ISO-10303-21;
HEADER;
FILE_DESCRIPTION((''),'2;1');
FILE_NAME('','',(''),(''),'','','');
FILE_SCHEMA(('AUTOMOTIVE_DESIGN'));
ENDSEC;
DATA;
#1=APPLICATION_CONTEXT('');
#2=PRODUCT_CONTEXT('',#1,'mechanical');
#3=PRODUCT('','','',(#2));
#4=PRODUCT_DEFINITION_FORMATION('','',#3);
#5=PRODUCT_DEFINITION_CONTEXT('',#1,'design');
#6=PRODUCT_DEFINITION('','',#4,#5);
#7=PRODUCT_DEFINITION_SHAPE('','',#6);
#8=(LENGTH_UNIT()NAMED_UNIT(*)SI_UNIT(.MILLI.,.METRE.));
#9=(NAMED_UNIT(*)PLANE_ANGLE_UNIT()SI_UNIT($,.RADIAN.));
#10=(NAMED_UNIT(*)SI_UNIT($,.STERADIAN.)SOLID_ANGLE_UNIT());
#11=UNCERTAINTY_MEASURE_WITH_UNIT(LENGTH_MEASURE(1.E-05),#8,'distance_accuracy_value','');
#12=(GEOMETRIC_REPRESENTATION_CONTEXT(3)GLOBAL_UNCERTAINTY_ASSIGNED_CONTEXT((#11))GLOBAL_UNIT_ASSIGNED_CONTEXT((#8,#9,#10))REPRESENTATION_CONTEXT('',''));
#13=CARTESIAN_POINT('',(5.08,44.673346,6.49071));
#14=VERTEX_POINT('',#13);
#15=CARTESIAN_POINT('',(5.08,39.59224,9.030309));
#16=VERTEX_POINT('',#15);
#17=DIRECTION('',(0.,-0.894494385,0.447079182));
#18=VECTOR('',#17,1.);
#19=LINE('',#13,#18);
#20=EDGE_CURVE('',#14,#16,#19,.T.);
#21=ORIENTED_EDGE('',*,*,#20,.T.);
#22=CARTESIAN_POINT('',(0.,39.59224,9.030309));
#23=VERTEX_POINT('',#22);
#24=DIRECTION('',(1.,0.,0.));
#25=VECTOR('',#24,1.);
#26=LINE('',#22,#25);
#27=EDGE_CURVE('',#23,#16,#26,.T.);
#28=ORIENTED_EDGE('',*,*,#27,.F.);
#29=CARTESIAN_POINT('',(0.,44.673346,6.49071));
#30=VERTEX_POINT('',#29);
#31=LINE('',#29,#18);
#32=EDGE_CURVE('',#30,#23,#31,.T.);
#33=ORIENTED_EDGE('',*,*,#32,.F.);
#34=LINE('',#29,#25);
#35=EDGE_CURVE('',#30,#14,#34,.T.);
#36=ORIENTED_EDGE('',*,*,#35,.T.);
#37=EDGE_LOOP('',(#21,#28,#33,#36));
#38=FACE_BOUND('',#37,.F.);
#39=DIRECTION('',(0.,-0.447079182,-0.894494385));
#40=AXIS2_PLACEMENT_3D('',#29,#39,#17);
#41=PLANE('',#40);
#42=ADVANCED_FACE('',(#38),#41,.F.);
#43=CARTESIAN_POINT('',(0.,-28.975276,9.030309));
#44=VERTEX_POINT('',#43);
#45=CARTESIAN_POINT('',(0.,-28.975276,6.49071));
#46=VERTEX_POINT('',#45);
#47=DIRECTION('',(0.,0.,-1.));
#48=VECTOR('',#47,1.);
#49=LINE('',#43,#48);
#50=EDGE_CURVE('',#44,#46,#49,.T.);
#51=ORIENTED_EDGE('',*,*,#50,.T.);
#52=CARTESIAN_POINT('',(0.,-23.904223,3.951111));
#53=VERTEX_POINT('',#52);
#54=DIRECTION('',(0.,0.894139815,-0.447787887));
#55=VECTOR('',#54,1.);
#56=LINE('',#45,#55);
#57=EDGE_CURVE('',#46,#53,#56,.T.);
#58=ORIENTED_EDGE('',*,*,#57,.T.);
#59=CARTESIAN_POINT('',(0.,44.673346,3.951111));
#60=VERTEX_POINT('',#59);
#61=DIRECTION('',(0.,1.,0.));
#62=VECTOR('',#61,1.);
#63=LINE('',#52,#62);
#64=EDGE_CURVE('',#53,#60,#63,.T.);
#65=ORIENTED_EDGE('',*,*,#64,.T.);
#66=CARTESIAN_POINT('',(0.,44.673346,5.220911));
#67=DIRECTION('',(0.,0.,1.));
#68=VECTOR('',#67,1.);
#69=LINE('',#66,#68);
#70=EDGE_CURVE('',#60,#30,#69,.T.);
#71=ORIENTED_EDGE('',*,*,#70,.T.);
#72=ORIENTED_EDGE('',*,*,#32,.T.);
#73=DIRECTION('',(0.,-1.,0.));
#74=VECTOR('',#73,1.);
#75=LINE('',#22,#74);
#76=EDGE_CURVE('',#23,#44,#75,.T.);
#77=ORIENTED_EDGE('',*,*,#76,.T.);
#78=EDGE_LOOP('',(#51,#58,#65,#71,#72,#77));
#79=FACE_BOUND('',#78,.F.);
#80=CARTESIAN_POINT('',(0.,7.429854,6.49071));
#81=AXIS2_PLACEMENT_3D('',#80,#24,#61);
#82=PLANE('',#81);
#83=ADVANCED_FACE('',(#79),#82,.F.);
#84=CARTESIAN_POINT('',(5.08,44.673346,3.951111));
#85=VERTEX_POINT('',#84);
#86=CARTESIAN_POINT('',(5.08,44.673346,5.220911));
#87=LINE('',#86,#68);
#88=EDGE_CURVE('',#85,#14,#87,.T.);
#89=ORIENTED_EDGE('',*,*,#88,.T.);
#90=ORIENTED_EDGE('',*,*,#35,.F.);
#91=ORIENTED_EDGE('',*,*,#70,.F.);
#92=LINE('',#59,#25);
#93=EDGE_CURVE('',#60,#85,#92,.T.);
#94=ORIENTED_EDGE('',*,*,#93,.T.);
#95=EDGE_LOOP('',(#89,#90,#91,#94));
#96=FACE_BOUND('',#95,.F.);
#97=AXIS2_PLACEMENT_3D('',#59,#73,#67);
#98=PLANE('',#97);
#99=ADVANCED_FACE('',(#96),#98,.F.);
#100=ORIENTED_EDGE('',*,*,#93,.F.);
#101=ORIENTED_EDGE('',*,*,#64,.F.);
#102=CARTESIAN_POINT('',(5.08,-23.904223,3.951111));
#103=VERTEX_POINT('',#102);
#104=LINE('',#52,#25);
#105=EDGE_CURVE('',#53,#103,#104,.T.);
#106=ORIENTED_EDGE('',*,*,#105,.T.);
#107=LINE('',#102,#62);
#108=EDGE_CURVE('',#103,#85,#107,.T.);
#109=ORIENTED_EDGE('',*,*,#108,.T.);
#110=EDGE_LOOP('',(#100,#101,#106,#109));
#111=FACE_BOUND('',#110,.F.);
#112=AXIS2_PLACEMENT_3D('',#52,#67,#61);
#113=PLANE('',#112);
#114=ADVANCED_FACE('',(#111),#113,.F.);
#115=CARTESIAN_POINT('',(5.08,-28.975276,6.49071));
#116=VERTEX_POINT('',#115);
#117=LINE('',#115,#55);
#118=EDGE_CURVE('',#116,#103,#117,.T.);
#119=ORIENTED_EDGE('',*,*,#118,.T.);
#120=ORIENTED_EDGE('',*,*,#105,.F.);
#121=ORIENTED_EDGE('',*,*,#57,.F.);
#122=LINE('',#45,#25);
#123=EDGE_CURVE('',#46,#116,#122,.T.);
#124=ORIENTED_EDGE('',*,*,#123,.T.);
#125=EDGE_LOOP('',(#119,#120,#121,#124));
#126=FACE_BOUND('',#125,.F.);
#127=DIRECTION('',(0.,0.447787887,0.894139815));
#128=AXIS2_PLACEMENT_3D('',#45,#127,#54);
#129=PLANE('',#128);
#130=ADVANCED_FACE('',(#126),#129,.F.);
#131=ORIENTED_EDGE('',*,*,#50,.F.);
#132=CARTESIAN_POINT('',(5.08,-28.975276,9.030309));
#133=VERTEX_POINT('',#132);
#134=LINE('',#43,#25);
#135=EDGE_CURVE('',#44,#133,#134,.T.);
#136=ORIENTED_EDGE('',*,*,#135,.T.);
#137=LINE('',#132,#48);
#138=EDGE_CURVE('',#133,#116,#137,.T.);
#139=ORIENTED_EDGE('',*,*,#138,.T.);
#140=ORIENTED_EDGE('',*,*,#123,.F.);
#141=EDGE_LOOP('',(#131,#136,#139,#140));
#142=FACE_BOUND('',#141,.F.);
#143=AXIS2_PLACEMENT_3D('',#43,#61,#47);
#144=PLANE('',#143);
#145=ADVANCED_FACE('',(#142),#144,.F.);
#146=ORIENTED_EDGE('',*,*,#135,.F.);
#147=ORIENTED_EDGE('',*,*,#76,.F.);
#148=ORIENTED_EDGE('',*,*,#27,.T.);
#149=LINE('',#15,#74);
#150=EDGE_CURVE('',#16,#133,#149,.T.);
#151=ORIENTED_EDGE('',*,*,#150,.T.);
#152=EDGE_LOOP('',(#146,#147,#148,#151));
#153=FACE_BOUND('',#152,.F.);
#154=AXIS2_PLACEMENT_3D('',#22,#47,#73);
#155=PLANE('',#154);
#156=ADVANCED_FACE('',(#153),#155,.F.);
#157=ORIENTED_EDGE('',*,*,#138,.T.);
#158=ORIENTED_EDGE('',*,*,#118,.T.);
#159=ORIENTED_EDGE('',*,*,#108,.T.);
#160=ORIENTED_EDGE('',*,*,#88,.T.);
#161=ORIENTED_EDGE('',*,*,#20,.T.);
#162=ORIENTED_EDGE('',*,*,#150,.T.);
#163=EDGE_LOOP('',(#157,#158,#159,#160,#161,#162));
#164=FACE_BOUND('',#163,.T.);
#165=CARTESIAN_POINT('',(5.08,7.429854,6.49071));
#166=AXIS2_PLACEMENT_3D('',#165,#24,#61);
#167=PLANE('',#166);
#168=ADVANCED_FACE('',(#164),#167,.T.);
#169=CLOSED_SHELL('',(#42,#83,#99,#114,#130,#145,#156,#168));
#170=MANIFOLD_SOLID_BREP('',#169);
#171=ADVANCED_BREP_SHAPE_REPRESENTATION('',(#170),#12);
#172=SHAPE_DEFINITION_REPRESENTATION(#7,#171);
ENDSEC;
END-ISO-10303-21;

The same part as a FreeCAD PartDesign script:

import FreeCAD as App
import Part
import Sketcher


def add_polygon(sketch, points):
    """Adds a closed chain of lines whose ends are joined by coincident constraints."""
    first, n = sketch.GeometryCount, len(points)
    for a, b in zip(points, points[1:] + points[:1]):
        sketch.addGeometry(Part.LineSegment(App.Vector(*a, 0), App.Vector(*b, 0)), False)
    for i in range(n):
        sketch.addConstraint(Sketcher.Constraint("Coincident", first + i, 2, first + (i + 1) % n, 1))

doc = App.newDocument("Part")
params = doc.addObject("Spreadsheet::Sheet", "Params")
for row, (alias, value) in enumerate([
    ("pad1_length", "0.2 in"),
    ("pad2_length", "0.2 in"),
], start=1):
    params.set(f"A{row}", alias)
    params.set(f"B{row}", "=" + value)
    params.setAlias(f"B{row}", alias)

body = doc.addObject("PartDesign::Body", "Body")

# Sketch on YZ plane
sketch1 = doc.addObject("Sketcher::SketchObject", "Sketch")
body.addObject(sketch1)
sketch1.AttachmentSupport = (doc.YZ_Plane, [""])
sketch1.MapMode = "FlatFace"
add_polygon(sketch1, [(-23.9, 4), (44.7, 4), (44.7, 6.5), (39.6, 9), (-29, 9), (-29, 6.5)])  # lines 0-5
sketch1.addConstraint([
    Sketcher.Constraint("Horizontal", 0),
    Sketcher.Constraint("Vertical", 1),
    Sketcher.Constraint("Horizontal", 3),
    Sketcher.Constraint("Vertical", 4),
    Sketcher.Constraint("Horizontal", 1, 2, 4, 2),
    Sketcher.Constraint("Equal", 1, 4),
    Sketcher.Constraint("DistanceY", 1, 1, 1, 2, 2.539599),
    Sketcher.Constraint("DistanceX", 0, 1, 0, 2, 68.577569),
    Sketcher.Constraint("DistanceX", 3, 2, 3, 1, 68.567516),
    Sketcher.Constraint("DistanceY", -1, 1, 0, 2, 3.951111),
    Sketcher.Constraint("DistanceX", -1, 1, 2, 2, 39.59224),
    Sketcher.Constraint("Distance", 2, 5.680422),
])
pad1 = doc.addObject("PartDesign::Pad", "Pad")
body.addObject(pad1)
pad1.Profile = sketch1
pad1.setExpression("Length", "Params.pad1_length")

# Sketch on YZ plane
sketch2 = doc.addObject("Sketcher::SketchObject", "Sketch001")
body.addObject(sketch2)
sketch2.AttachmentSupport = (doc.YZ_Plane, [""])
sketch2.MapMode = "FlatFace"
add_polygon(sketch2, [(-23.9, 4), (44.7, 4), (44.7, 6.5), (39.6, 9), (-29, 9), (-29, 6.5)])  # lines 0-5
sketch2.addConstraint([
    Sketcher.Constraint("Horizontal", 0),
    Sketcher.Constraint("Vertical", 1),
    Sketcher.Constraint("Horizontal", 3),
    Sketcher.Constraint("Vertical", 4),
    Sketcher.Constraint("Horizontal", 1, 2, 4, 2),
    Sketcher.Constraint("Equal", 1, 4),
    Sketcher.Constraint("DistanceY", 1, 1, 1, 2, 2.539599),
    Sketcher.Constraint("DistanceX", 0, 1, 0, 2, 68.577569),
    Sketcher.Constraint("DistanceX", 3, 2, 3, 1, 68.567516),
    Sketcher.Constraint("DistanceY", -1, 1, 0, 2, 3.951111),
    Sketcher.Constraint("DistanceX", -1, 1, 2, 2, 39.59224),
    Sketcher.Constraint("Distance", 2, 5.680422),
])
pad2 = doc.addObject("PartDesign::Pad", "Pad001")
body.addObject(pad2)
pad2.Profile = sketch2
pad2.setExpression("Length", "Params.pad2_length")

doc.recompute()
